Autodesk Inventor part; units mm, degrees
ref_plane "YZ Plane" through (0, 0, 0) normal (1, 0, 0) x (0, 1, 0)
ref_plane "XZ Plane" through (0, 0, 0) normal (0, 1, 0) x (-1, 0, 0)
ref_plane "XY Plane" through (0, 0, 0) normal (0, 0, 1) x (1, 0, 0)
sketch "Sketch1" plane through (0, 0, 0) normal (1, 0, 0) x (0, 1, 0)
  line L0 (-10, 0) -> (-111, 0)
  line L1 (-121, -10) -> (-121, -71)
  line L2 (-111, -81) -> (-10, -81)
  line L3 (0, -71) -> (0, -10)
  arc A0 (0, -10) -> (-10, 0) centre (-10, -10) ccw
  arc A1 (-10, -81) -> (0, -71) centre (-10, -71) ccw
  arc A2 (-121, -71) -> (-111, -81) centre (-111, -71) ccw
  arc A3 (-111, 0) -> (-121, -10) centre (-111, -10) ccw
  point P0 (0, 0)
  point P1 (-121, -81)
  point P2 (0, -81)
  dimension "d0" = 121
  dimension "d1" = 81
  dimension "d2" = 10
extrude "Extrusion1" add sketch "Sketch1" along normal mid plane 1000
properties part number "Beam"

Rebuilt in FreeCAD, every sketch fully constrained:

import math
import FreeCAD as App
import Part
import Sketcher
from FreeCAD import Vector
Q = App.Units.Quantity

doc = App.newDocument("Part")
body = doc.addObject("PartDesign::Body", "Body")

sketch1 = body.newObject("Sketcher::SketchObject", "Sketch")
sketch1.AttachmentSupport = (doc.getObject("YZ_Plane"), [""])
sketch1.MapMode = "FlatFace"
sketch1.addGeometry(Part.ArcOfCircle(Part.Circle(Vector(-10, -10, 0), Vector(0, 0, 1), 10), math.radians(0), math.radians(90)), False)
sketch1.addGeometry(Part.LineSegment(Vector(-10, 0, 0), Vector(-111, 0, 0)), False)
sketch1.addGeometry(Part.ArcOfCircle(Part.Circle(Vector(-111, -10, 0), Vector(0, 0, 1), 10), math.radians(90), math.radians(180)), False)
sketch1.addGeometry(Part.LineSegment(Vector(-121, -10, 0), Vector(-121, -71, 0)), False)
sketch1.addGeometry(Part.ArcOfCircle(Part.Circle(Vector(-111, -71, 0), Vector(0, 0, 1), 10), math.radians(180), math.radians(270)), False)
sketch1.addGeometry(Part.LineSegment(Vector(-111, -81, 0), Vector(-10, -81, 0)), False)
sketch1.addGeometry(Part.ArcOfCircle(Part.Circle(Vector(-10, -71, 0), Vector(0, 0, 1), 10), math.radians(-90), math.radians(0)), False)
sketch1.addGeometry(Part.LineSegment(Vector(0, -71, 0), Vector(0, -10, 0)), False)
sketch1.addConstraint(Sketcher.Constraint("Tangent", 0, 2, 1, 1))
sketch1.addConstraint(Sketcher.Constraint("Tangent", 1, 2, 2, 1))
sketch1.addConstraint(Sketcher.Constraint("Tangent", 2, 2, 3, 1))
sketch1.addConstraint(Sketcher.Constraint("Tangent", 3, 2, 4, 1))
sketch1.addConstraint(Sketcher.Constraint("Tangent", 4, 2, 5, 1))
sketch1.addConstraint(Sketcher.Constraint("Tangent", 5, 2, 6, 1))
sketch1.addConstraint(Sketcher.Constraint("Tangent", 6, 2, 7, 1))
sketch1.addConstraint(Sketcher.Constraint("Tangent", 7, 2, 0, 1))
sketch1.addConstraint(Sketcher.Constraint("Horizontal", 1))
sketch1.addConstraint(Sketcher.Constraint("Vertical", 3))
sketch1.addConstraint(Sketcher.Constraint("Horizontal", 5))
sketch1.addConstraint(Sketcher.Constraint("Vertical", 7))
sketch1.addConstraint(Sketcher.Constraint("Equal", 0, 2))
sketch1.addConstraint(Sketcher.Constraint("Equal", 2, 4))
sketch1.addConstraint(Sketcher.Constraint("Equal", 4, 6))
sketch1.addConstraint(Sketcher.Constraint("PointOnObject", 0, 2, -1))
sketch1.addConstraint(Sketcher.Constraint("PointOnObject", 6, 2, -2))
sketch1.addConstraint(Sketcher.Constraint("Radius", 0, Q("10 mm")))
sketch1.addConstraint(Sketcher.Constraint("DistanceX", 2, 2, -1, 1, Q("121 mm")))
sketch1.addConstraint(Sketcher.Constraint("DistanceY", 4, 2, -1, 1, Q("81 mm")))
pad1 = body.newObject("PartDesign::Pad", "Pad")
pad1.Profile = sketch1
pad1.Length = 1000
pad1.Midplane = True

doc.recompute()
